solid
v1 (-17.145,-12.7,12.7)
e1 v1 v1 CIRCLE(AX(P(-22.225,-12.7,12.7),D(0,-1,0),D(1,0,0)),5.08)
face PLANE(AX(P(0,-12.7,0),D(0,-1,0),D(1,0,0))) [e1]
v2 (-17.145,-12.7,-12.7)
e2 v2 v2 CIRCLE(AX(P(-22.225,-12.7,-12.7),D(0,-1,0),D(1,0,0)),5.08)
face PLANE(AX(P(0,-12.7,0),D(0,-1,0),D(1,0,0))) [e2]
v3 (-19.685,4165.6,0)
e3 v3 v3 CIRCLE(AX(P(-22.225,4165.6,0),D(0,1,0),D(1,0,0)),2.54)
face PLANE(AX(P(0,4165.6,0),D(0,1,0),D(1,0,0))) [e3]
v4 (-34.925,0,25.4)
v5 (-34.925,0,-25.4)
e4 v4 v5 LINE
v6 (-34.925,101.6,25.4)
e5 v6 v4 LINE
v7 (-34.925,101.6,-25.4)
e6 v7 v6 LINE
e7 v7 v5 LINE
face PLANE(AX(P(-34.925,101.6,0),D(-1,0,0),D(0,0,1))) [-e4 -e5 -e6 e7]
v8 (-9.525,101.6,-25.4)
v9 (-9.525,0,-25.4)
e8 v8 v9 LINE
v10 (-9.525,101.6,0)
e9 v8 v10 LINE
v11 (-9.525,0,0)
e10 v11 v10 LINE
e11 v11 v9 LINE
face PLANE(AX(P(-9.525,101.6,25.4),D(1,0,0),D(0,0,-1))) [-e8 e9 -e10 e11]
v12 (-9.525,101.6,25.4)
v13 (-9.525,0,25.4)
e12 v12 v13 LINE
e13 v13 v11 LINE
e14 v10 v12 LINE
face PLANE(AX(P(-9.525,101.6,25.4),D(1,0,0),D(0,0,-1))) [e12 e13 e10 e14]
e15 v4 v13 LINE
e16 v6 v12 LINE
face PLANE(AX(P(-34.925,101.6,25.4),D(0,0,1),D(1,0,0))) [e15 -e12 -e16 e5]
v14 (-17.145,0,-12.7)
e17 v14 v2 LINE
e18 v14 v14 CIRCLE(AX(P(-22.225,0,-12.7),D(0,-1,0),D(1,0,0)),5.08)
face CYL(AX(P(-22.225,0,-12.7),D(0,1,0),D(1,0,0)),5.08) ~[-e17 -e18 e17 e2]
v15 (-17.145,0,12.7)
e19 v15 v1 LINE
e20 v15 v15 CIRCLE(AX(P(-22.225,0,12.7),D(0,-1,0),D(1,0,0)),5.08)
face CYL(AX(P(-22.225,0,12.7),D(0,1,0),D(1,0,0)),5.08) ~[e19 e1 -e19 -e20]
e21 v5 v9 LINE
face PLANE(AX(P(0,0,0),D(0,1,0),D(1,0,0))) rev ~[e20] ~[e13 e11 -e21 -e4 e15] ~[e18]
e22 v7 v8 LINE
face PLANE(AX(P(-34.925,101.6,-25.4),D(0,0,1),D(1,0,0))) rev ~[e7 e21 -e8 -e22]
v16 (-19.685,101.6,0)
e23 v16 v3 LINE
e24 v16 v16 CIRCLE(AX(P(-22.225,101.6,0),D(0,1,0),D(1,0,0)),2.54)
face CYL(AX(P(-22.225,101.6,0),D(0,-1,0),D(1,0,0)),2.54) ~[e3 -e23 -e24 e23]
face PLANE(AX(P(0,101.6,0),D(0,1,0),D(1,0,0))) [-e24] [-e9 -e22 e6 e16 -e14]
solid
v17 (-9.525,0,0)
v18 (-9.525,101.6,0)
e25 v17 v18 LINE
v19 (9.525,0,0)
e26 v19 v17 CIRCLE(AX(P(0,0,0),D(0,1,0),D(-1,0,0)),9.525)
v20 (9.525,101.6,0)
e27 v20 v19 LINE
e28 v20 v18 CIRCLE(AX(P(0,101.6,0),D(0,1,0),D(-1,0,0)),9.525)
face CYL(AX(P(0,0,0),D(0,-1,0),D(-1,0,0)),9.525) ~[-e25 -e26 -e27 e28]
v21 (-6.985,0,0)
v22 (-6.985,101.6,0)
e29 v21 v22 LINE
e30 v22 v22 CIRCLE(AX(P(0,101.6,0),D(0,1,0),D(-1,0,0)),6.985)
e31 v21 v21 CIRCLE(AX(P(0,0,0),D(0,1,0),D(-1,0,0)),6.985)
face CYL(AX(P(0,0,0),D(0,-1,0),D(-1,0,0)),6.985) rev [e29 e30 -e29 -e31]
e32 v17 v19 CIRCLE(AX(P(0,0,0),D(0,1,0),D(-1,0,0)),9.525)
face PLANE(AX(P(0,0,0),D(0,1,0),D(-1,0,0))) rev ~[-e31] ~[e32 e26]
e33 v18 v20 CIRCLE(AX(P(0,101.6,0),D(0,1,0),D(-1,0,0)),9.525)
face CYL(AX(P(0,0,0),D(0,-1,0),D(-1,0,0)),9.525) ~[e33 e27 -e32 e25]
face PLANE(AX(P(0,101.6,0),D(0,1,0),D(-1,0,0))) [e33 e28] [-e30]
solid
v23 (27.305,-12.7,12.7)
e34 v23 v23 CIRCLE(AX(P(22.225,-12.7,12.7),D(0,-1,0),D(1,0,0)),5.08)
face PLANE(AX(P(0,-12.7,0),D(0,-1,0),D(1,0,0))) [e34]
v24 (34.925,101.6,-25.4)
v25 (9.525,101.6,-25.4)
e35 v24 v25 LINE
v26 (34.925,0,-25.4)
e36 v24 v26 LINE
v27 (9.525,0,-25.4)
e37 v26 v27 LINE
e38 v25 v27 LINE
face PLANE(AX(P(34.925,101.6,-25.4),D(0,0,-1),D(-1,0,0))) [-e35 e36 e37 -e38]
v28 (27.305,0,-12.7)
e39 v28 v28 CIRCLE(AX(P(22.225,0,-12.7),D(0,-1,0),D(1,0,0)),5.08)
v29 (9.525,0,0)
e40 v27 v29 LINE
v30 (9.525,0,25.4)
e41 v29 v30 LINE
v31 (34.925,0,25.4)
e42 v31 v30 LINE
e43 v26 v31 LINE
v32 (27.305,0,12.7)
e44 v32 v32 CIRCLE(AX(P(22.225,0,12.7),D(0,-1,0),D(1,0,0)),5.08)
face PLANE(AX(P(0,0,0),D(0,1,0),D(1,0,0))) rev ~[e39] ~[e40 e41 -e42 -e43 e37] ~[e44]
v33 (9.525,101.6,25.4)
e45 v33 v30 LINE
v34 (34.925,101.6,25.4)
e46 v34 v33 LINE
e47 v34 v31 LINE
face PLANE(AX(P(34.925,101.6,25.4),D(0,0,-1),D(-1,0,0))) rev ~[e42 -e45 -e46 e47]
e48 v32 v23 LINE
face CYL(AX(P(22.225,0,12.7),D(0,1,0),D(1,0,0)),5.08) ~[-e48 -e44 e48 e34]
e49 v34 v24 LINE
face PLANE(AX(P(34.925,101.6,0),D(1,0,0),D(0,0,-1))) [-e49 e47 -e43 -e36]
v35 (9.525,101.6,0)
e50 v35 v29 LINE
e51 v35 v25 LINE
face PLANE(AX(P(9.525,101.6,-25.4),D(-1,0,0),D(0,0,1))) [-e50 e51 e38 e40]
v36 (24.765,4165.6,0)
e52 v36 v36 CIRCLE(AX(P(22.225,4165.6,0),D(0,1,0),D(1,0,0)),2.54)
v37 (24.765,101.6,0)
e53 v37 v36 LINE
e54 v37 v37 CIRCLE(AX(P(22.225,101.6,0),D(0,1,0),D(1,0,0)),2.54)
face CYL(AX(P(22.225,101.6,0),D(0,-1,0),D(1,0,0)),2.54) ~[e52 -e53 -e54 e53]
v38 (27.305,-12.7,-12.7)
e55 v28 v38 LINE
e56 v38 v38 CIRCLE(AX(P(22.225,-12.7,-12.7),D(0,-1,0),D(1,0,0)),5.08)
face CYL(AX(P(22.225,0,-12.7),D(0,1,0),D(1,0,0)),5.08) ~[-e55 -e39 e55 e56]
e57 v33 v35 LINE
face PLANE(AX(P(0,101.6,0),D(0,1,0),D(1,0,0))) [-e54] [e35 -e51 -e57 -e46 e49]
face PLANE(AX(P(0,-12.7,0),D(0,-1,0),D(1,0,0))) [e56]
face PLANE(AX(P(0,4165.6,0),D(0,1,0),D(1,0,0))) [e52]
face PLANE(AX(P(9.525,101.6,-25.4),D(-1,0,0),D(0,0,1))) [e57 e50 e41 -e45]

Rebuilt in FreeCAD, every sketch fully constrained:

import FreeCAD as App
import Part
import Sketcher

V = App.Vector
Q = App.Units.Quantity

doc = App.newDocument("Part")
body = doc.addObject("PartDesign::Body", "Body")
body.AllowCompound = True

# Sketch on XZ plane
sketch1 = doc.addObject("Sketcher::SketchObject", "Sketch")
body.addObject(sketch1)
sketch1.AttachmentSupport = (doc.XZ_Plane, [""])
sketch1.MapMode = "FlatFace"
sketch1.addGeometry(Part.Circle(V(0, 0, 0), V(0, 0, 1), 10), False)
sketch1.addGeometry(Part.Circle(V(0, 0, 0), V(0, 0, 1), 7), False)
sketch1.addConstraint(Sketcher.Constraint("Coincident", 0, 3, -1, 1))
sketch1.addConstraint(Sketcher.Constraint("Coincident", 1, 3, -1, 1))
sketch1.addConstraint(Sketcher.Constraint("Diameter", 0, Q("0.75 in")))
sketch1.addConstraint(Sketcher.Constraint("Diameter", 1, Q("0.55 in")))
pad1 = doc.addObject("PartDesign::Pad", "Pad")
body.addObject(pad1)
pad1.Profile = sketch1
pad1.Length = Q("4 in")
pad1.Reversed = True

# Sketch on XZ plane
sketch2 = doc.addObject("Sketcher::SketchObject", "Sketch001")
body.addObject(sketch2)
sketch2.AttachmentSupport = (doc.XZ_Plane, [""])
sketch2.MapMode = "FlatFace"
sketch2.AttachmentOffset = App.Placement(V(0, 0, -4 * 25.4), App.Rotation())
sketch2.addGeometry(Part.LineSegment(V(-10, 25, 0), V(-10, -25, 0)), False)
sketch2.addGeometry(Part.LineSegment(V(-10, -25, 0), V(-35, -25, 0)), False)
sketch2.addGeometry(Part.LineSegment(V(-35, -25, 0), V(-35, 25, 0)), False)
sketch2.addGeometry(Part.LineSegment(V(-35, 25, 0), V(-10, 25, 0)), False)
sketch2.addGeometry(Part.LineSegment(V(10, -25, 0), V(10, 25, 0)), False)
sketch2.addGeometry(Part.LineSegment(V(10, 25, 0), V(35, 25, 0)), False)
sketch2.addGeometry(Part.LineSegment(V(35, 25, 0), V(35, -25, 0)), False)
sketch2.addGeometry(Part.LineSegment(V(35, -25, 0), V(10, -25, 0)), False)
sketch2.addConstraint(Sketcher.Constraint("Coincident", 0, 2, 1, 1))
sketch2.addConstraint(Sketcher.Constraint("Coincident", 1, 2, 2, 1))
sketch2.addConstraint(Sketcher.Constraint("Coincident", 2, 2, 3, 1))
sketch2.addConstraint(Sketcher.Constraint("Coincident", 3, 2, 0, 1))
sketch2.addConstraint(Sketcher.Constraint("Coincident", 4, 2, 5, 1))
sketch2.addConstraint(Sketcher.Constraint("Coincident", 5, 2, 6, 1))
sketch2.addConstraint(Sketcher.Constraint("Coincident", 6, 2, 7, 1))
sketch2.addConstraint(Sketcher.Constraint("Coincident", 7, 2, 4, 1))
sketch2.addConstraint(Sketcher.Constraint("Vertical", 0))
sketch2.addConstraint(Sketcher.Constraint("Horizontal", 1))
sketch2.addConstraint(Sketcher.Constraint("Vertical", 2))
sketch2.addConstraint(Sketcher.Constraint("Horizontal", 3))
sketch2.addConstraint(Sketcher.Constraint("Vertical", 4))
sketch2.addConstraint(Sketcher.Constraint("Horizontal", 5))
sketch2.addConstraint(Sketcher.Constraint("Vertical", 6))
sketch2.addConstraint(Sketcher.Constraint("Horizontal", 7))
sketch2.addConstraint(Sketcher.Constraint("Symmetric", 0, 2, 4, 2, -1, 1))
sketch2.addConstraint(Sketcher.Constraint("Symmetric", 2, 2, 6, 2, -1, 1))
sketch2.addConstraint(Sketcher.Constraint("Horizontal", 3, 2, 4, 2))
sketch2.addConstraint(Sketcher.Constraint("DistanceX", 1, 2, 1, 1, Q("1 in")))
sketch2.addConstraint(Sketcher.Constraint("DistanceY", 0, 2, -1, 1, Q("1 in")))
sketch2.addConstraint(Sketcher.Constraint("DistanceX", 3, 2, 4, 2, Q("0.75 in")))
pad2 = doc.addObject("PartDesign::Pad", "Pad001")
body.addObject(pad2)
pad2.Profile = sketch2
pad2.Length = Q("4 in")

# Sketch on XZ plane
sketch3 = doc.addObject("Sketcher::SketchObject", "Sketch002")
body.addObject(sketch3)
sketch3.AttachmentSupport = (doc.XZ_Plane, [""])
sketch3.MapMode = "FlatFace"
sketch3.AttachmentOffset = App.Placement(V(0, 0, -4 * 25.4), App.Rotation())
sketch3.addGeometry(Part.Circle(V(-22.2, 0, 0), V(0, 0, 1), 2.5), False)
sketch3.addGeometry(Part.Circle(V(22.2, 0, 0), V(0, 0, 1), 2.5), False)
sketch3.addConstraint(Sketcher.Constraint("Equal", 0, 1))
sketch3.addConstraint(Sketcher.Constraint("Symmetric", 0, 3, 1, 3, -1, 1))
sketch3.addConstraint(Sketcher.Constraint("PointOnObject", 0, 3, -1))
sketch3.addConstraint(Sketcher.Constraint("Diameter", 0, Q("0.2 in")))
sketch3.addConstraint(Sketcher.Constraint("DistanceX", 0, 3, 1, 3, Q("1.75 in")))
pad3 = doc.addObject("PartDesign::Pad", "Pad002")
body.addObject(pad3)
pad3.Profile = sketch3
pad3.Length = Q("160 in")
pad3.Reversed = True

# Sketch on XZ plane
sketch4 = doc.addObject("Sketcher::SketchObject", "Sketch003")
body.addObject(sketch4)
sketch4.AttachmentSupport = (doc.XZ_Plane, [""])
sketch4.MapMode = "FlatFace"
sketch4.addGeometry(Part.Circle(V(-22, 13, 0), V(0, 0, 1), 5), False)
sketch4.addGeometry(Part.Circle(V(-22, -13, 0), V(0, 0, 1), 5), False)
sketch4.addGeometry(Part.Circle(V(22, 13, 0), V(0, 0, 1), 5), False)
sketch4.addGeometry(Part.Circle(V(22, -13, 0), V(0, 0, 1), 5), False)
sketch4.addConstraint(Sketcher.Constraint("Equal", 0, 1))
sketch4.addConstraint(Sketcher.Constraint("Equal", 1, 2))
sketch4.addConstraint(Sketcher.Constraint("Equal", 2, 3))
sketch4.addConstraint(Sketcher.Constraint("Symmetric", 1, 3, 2, 3, -1, 1))
sketch4.addConstraint(Sketcher.Constraint("Symmetric", 0, 3, 3, 3, -1, 1))
sketch4.addConstraint(Sketcher.Constraint("Symmetric", 0, 3, 2, 3, -2))
sketch4.addConstraint(Sketcher.Constraint("Diameter", 0, Q("0.4 in")))
sketch4.addConstraint(Sketcher.Constraint("DistanceY", 1, 3, 0, 3, Q("1 in")))
sketch4.addConstraint(Sketcher.Constraint("DistanceX", 0, 3, 2, 3, Q("1.75 in")))
pad4 = doc.addObject("PartDesign::Pad", "Pad003")
body.addObject(pad4)
pad4.Profile = sketch4
pad4.Length = Q("0.5 in")

doc.recompute()
